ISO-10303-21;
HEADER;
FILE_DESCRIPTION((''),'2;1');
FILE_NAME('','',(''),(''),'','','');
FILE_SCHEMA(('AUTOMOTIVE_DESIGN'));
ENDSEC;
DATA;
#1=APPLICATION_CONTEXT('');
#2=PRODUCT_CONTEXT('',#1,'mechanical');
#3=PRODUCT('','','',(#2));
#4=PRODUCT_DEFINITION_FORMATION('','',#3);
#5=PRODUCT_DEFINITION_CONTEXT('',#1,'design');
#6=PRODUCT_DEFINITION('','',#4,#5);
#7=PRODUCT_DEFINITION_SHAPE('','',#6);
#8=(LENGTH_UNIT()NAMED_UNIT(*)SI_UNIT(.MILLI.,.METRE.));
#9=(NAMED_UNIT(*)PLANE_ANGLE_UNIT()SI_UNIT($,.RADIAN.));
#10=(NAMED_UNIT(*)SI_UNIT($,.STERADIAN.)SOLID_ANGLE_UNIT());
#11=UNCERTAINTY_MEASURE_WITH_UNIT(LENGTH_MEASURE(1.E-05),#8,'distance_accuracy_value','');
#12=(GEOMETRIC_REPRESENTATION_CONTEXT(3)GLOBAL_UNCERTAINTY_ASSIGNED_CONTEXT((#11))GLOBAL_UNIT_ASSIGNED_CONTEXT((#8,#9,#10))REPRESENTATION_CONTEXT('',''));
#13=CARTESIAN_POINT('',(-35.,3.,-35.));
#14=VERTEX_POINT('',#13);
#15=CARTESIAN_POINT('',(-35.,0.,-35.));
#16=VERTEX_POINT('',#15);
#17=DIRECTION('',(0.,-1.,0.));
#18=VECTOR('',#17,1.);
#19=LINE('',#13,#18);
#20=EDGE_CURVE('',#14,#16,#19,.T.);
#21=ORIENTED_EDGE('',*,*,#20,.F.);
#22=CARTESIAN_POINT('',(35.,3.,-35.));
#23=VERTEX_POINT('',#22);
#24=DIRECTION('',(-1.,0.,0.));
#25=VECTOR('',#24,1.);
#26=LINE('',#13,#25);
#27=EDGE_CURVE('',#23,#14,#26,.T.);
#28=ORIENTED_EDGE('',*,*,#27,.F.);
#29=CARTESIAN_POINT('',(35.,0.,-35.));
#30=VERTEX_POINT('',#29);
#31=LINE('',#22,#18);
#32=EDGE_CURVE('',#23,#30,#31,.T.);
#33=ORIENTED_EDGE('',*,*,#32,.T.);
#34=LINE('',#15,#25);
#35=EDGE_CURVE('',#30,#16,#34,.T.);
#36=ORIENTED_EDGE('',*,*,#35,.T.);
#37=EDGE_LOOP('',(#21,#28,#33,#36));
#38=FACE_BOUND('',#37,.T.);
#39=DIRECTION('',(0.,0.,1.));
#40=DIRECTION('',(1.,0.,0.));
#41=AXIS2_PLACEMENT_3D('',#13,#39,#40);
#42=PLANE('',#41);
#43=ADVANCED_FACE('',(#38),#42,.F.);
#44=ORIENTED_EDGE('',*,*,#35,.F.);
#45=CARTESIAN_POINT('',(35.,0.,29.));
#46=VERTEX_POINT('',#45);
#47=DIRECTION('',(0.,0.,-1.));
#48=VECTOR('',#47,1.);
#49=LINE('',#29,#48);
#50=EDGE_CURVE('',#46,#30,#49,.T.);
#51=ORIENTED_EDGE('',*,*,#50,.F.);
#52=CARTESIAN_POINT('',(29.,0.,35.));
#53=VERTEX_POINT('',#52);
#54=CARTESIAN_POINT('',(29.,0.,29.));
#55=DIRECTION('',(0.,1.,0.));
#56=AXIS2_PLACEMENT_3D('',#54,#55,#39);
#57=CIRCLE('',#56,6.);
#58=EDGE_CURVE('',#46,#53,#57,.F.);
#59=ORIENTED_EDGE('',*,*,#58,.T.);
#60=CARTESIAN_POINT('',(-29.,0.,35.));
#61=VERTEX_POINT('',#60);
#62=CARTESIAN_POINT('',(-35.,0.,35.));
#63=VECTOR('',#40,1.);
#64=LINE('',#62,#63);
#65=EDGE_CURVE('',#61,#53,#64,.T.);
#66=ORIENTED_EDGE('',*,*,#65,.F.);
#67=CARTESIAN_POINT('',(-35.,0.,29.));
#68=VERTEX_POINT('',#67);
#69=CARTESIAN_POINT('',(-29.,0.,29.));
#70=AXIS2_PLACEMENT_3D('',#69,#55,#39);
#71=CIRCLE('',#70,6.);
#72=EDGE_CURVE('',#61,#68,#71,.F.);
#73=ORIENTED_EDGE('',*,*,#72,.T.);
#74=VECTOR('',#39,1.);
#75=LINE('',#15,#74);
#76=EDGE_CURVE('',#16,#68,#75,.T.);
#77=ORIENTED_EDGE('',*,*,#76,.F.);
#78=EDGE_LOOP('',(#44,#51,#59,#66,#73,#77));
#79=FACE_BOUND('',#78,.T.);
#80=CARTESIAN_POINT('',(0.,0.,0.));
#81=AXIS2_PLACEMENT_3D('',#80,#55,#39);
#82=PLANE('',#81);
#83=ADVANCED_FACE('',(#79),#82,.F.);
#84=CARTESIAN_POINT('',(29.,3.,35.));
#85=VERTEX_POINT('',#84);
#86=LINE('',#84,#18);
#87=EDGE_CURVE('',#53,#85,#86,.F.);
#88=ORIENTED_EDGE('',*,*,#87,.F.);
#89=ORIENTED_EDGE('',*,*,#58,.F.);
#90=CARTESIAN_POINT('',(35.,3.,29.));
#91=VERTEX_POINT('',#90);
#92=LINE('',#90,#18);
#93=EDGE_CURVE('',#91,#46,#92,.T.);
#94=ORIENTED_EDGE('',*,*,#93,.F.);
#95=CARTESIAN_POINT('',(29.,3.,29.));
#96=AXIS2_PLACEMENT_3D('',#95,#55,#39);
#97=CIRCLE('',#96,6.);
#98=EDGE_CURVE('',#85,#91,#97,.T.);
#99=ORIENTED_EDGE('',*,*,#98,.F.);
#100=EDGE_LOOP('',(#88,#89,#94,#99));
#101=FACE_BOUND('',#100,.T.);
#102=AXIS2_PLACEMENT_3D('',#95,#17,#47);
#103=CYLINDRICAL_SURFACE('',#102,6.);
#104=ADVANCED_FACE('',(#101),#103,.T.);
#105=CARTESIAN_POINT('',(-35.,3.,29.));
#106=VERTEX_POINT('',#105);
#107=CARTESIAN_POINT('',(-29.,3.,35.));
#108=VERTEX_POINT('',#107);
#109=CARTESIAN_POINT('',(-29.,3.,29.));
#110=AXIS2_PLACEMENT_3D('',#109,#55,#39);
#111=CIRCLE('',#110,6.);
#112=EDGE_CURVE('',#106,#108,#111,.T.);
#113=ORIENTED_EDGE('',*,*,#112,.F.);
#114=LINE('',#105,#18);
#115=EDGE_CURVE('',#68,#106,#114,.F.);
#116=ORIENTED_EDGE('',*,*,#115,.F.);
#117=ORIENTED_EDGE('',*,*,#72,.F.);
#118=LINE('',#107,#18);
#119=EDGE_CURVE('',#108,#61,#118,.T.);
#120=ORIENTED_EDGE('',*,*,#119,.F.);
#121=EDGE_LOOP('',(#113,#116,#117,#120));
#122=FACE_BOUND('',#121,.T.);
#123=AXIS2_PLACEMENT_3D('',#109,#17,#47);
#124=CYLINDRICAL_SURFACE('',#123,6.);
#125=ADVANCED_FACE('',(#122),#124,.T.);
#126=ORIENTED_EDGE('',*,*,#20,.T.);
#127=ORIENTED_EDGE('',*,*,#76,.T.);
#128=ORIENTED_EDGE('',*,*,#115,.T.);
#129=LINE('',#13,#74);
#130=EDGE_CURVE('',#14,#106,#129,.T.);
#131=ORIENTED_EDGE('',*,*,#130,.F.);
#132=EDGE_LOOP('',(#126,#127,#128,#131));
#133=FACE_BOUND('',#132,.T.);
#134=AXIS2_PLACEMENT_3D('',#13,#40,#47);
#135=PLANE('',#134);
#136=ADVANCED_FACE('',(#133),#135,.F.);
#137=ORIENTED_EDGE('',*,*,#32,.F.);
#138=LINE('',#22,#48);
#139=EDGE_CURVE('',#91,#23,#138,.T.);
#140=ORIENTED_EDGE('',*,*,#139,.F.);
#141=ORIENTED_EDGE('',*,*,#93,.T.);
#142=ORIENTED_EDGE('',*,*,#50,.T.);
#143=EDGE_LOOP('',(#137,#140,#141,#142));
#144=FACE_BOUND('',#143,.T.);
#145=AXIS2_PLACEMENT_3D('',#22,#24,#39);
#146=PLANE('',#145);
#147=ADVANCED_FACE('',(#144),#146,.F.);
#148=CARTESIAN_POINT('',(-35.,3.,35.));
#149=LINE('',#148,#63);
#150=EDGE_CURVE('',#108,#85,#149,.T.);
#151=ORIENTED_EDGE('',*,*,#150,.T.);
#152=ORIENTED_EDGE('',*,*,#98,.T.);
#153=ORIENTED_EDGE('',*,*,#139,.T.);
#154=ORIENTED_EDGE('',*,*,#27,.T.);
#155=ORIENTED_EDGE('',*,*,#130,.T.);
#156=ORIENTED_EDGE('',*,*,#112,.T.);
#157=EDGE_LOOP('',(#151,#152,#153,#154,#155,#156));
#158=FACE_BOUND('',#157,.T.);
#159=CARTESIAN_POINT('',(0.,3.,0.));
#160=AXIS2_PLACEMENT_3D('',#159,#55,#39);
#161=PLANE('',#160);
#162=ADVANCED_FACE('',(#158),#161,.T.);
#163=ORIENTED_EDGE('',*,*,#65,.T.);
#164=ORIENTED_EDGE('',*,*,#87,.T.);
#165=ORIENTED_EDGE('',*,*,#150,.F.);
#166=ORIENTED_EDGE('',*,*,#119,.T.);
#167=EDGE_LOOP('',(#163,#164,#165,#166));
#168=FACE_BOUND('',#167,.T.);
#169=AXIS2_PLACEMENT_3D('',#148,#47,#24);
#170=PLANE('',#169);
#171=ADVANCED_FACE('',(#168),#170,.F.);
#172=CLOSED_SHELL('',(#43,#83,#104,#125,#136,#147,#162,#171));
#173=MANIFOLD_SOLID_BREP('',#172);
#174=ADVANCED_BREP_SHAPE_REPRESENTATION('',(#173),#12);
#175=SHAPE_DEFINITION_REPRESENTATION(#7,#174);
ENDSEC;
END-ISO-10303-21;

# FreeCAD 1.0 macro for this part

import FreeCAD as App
import Part
import Sketcher

V = App.Vector


def edges_at(feature, points):
    """Names of the edges that pass closest to the given points."""
    edges = feature.Shape.Edges
    near = lambda p: min(range(len(edges)), key=lambda i: edges[i].distToShape(Part.Vertex(*p))[0])
    return sorted({f"Edge{near(p) + 1}" for p in points})


def add_polygon(sketch, points):
    """Adds a closed chain of lines whose ends are joined by coincident constraints."""
    first, n = sketch.GeometryCount, len(points)
    for a, b in zip(points, points[1:] + points[:1]):
        sketch.addGeometry(Part.LineSegment(App.Vector(*a, 0), App.Vector(*b, 0)), False)
    for i in range(n):
        sketch.addConstraint(Sketcher.Constraint("Coincident", first + i, 2, first + (i + 1) % n, 1))

doc = App.newDocument("Part")
body = doc.addObject("PartDesign::Body", "Body")

sketch1 = body.newObject("Sketcher::SketchObject", "Sketch")
sketch1.AttachmentSupport = (doc.getObject("XZ_Plane"), [""])
sketch1.MapMode = "FlatFace"
add_polygon(sketch1, [(-35, -35), (-35, 35), (35, 35), (35, -35)])
sketch1.addConstraint([
    Sketcher.Constraint("Vertical", 0),
    Sketcher.Constraint("Horizontal", 1),
    Sketcher.Constraint("Vertical", 2),
    Sketcher.Constraint("Horizontal", 3),
    Sketcher.Constraint("Symmetric", 0, 2, 2, 2, -1, 1),
    Sketcher.Constraint("Equal", 3, 0),
    Sketcher.Constraint("DistanceX", 1, 1, 1, 2, 70.0),
])
pad1 = body.newObject("PartDesign::Pad", "Pad")
pad1.Profile = sketch1
pad1.Length = 3
pad1.Reversed = True
doc.recompute()

fillet = body.newObject("PartDesign::Fillet", "Fillet")
fillet.Base = (pad1, edges_at(pad1, [(35, 1.5, 35), (-35, 1.5, 35)]))
fillet.Radius = 6

doc.recompute()
